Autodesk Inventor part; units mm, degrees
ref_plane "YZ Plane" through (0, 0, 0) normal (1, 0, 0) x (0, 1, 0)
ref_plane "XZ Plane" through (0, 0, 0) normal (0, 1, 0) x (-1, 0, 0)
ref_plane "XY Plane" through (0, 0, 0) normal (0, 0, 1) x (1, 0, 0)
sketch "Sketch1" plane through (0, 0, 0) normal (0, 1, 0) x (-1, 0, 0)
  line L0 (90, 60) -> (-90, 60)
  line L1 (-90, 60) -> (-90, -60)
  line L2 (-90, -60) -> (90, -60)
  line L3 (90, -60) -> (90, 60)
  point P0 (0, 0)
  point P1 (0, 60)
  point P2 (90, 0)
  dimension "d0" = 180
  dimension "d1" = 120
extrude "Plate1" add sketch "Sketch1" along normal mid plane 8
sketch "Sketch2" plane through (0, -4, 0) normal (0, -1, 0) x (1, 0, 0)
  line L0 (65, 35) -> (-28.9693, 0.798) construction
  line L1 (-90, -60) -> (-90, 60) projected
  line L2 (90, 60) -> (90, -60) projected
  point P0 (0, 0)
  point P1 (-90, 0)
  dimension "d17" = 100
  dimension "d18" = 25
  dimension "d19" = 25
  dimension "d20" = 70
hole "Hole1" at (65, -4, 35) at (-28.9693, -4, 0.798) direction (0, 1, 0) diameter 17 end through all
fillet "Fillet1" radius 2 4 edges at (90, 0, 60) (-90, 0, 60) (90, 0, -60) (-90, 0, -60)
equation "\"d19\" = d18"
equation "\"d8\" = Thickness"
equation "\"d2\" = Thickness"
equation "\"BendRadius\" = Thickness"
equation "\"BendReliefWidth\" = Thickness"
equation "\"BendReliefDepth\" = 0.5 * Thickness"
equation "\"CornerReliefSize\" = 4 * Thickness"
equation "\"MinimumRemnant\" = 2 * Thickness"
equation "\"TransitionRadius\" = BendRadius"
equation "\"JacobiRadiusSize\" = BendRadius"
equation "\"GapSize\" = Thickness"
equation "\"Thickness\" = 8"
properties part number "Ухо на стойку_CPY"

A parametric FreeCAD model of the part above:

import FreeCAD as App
import Part
import Sketcher
from FreeCAD import Vector
Q = App.Units.Quantity


def edges_at(feature, points):
    """Names of the edges that pass closest to the given points."""
    edges = feature.Shape.Edges
    near = lambda p: min(range(len(edges)), key=lambda i: edges[i].distToShape(Part.Vertex(*p))[0])
    return sorted({f"Edge{near(p) + 1}" for p in points})

doc = App.newDocument("Part")
params = doc.addObject("Spreadsheet::Sheet", "Params")
for row, (alias, value) in enumerate([
    ("sketch1_width", "180 mm"),
    ("sketch1_height", "120 mm"),
    ("pad1_length", "8 mm"),
    ("sketch2_diameter", "17 mm"),
    ("hole_diameter", "17 mm"),
    ("fillet_radius", "2 mm"),
], start=1):
    params.set(f"A{row}", alias)
    params.set(f"B{row}", "=" + value)
    params.setAlias(f"B{row}", alias)

body = doc.addObject("PartDesign::Body", "Body")

sketch1 = body.newObject("Sketcher::SketchObject", "Sketch")
sketch1.AttachmentSupport = (doc.getObject("XZ_Plane"), [""])
sketch1.MapMode = "FlatFace"
sketch1.addGeometry([
    Part.LineSegment(Vector(-90, -60, 0), Vector(-90, 60, 0)),
    Part.LineSegment(Vector(-90, 60, 0), Vector(90, 60, 0)),
    Part.LineSegment(Vector(90, 60, 0), Vector(90, -60, 0)),
    Part.LineSegment(Vector(90, -60, 0), Vector(-90, -60, 0)),
], False)
sketch1.addConstraint([
    Sketcher.Constraint("Coincident", 0, 2, 1, 1),
    Sketcher.Constraint("Coincident", 1, 2, 2, 1),
    Sketcher.Constraint("Coincident", 2, 2, 3, 1),
    Sketcher.Constraint("Coincident", 3, 2, 0, 1),
    Sketcher.Constraint("Vertical", 0),
    Sketcher.Constraint("Horizontal", 1),
    Sketcher.Constraint("Vertical", 2),
    Sketcher.Constraint("Horizontal", 3),
    Sketcher.Constraint("Symmetric", 0, 2, 2, 2, -1, 1),
    Sketcher.Constraint("DistanceX", 1, 1, 1, 2, Q("180 mm")),
    Sketcher.Constraint("DistanceY", 0, 1, 0, 2, Q("120 mm")),
])
sketch1.setExpression("Constraints[9]", "Params.sketch1_width")
sketch1.setExpression("Constraints[10]", "Params.sketch1_height")
pad1 = body.newObject("PartDesign::Pad", "Pad")
pad1.Profile = sketch1
pad1.setExpression("Length", "Params.pad1_length")
pad1.Midplane = True

sketch2 = body.newObject("Sketcher::SketchObject", "Sketch001")
sketch2.AttachmentSupport = (doc.getObject("XZ_Plane"), [""])
sketch2.MapMode = "FlatFace"
sketch2.AttachmentOffset = App.Placement(Vector(0, 0, 4), App.Rotation())
sketch2.addGeometry([
    Part.Circle(Vector(65, 35, 0), Vector(0, 0, 1), 8),
    Part.Circle(Vector(-29, 1, 0), Vector(0, 0, 1), 8),
], False)
sketch2.addConstraint([
    Sketcher.Constraint("Equal", 0, 1),
    Sketcher.Constraint("Diameter", 0, Q("17 mm")),
    Sketcher.Constraint("DistanceX", -1, 1, 0, 3, Q("65 mm")),
    Sketcher.Constraint("DistanceY", -1, 1, 0, 3, Q("35 mm")),
    Sketcher.Constraint("DistanceY", -1, 1, 1, 3, Q("0.798 mm")),
    Sketcher.Constraint("DistanceX", 1, 3, -1, 1, Q("28.9693 mm")),
])
sketch2.setExpression("Constraints[1]", "Params.sketch2_diameter")
doc.recompute()
hole = body.newObject("PartDesign::Hole", "Hole")
hole.Profile = sketch2
hole.ThreadType = "None"
hole.setExpression("Diameter", "Params.hole_diameter")
hole.DepthType = "ThroughAll"
doc.recompute()

fillet = body.newObject("PartDesign::Fillet", "Fillet")
fillet.Base = (hole, edges_at(hole, [
    (90, 0, 60),
    (-90, 0, 60),
    (90, 0, -60),
    (-90, 0, -60),
]))
fillet.setExpression("Radius", "Params.fillet_radius")

doc.recompute()
